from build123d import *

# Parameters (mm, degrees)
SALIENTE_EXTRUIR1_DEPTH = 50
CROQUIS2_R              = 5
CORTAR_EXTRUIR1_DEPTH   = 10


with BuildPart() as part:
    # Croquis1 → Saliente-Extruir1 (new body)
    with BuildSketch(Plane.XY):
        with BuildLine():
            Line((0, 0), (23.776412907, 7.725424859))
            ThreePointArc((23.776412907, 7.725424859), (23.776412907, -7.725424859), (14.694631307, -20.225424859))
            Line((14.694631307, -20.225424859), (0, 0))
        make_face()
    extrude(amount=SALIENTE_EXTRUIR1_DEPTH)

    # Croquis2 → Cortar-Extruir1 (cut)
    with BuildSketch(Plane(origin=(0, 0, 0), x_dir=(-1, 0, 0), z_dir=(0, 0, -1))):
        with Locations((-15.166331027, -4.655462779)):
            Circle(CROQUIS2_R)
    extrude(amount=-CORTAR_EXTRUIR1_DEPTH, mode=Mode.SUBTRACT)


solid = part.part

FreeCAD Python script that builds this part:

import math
import FreeCAD as App
import Part
import Sketcher

V = App.Vector
Q = App.Units.Quantity

doc = App.newDocument("Part")
body = doc.addObject("PartDesign::Body", "Body")

# Sketch on XY plane
sketch1 = doc.addObject("Sketcher::SketchObject", "Sketch")
body.addObject(sketch1)
sketch1.AttachmentSupport = (doc.XY_Plane, [""])
sketch1.MapMode = "FlatFace"
sketch1.addGeometry([
    Part.LineSegment(V(23.776413, 7.725425, 0), V(0, 0, 0)),
    Part.LineSegment(V(0, 0, 0), V(14.694631, -20.225425, 0)),
    Part.ArcOfCircle(Part.Circle(V(0, 0, 0), V(0, 0, 1), 25), math.radians(-54), math.radians(18)),
], False)
sketch1.addConstraint([
    Sketcher.Constraint("Coincident", 0, 2, 1, 1),
    Sketcher.Constraint("Coincident", 1, 2, 2, 1),
    Sketcher.Constraint("Coincident", 2, 2, 0, 1),
    Sketcher.Constraint("Coincident", 2, 3, -1, 1),
    Sketcher.Constraint("Coincident", 0, 2, -1, 1),
    Sketcher.Constraint("Radius", 2, Q("25 mm")),
    Sketcher.Constraint("Angle", 0, Q("-162 deg")),
    Sketcher.Constraint("Angle", 1, Q("-54 deg")),
])
pad1 = doc.addObject("PartDesign::Pad", "Pad")
body.addObject(pad1)
pad1.Profile = sketch1
pad1.Length = 50

# Sketch on XY plane
sketch2 = doc.addObject("Sketcher::SketchObject", "Sketch001")
body.addObject(sketch2)
sketch2.AttachmentSupport = (doc.XY_Plane, [""])
sketch2.MapMode = "FlatFace"
sketch2.addGeometry(Part.Circle(V(15.166331, -4.655463, 0), V(0, 0, 1), 5), False)
sketch2.addConstraint([
    Sketcher.Constraint("Diameter", 0, Q("10 mm")),
    Sketcher.Constraint("DistanceX", -1, 1, 0, 3, Q("15.166331 mm")),
    Sketcher.Constraint("DistanceY", 0, 3, -1, 1, Q("4.655463 mm")),
])
pocket1 = doc.addObject("PartDesign::Pocket", "Pocket")
body.addObject(pocket1)
pocket1.Profile = sketch2
pocket1.Length = 10
pocket1.Reversed = True

doc.recompute()
